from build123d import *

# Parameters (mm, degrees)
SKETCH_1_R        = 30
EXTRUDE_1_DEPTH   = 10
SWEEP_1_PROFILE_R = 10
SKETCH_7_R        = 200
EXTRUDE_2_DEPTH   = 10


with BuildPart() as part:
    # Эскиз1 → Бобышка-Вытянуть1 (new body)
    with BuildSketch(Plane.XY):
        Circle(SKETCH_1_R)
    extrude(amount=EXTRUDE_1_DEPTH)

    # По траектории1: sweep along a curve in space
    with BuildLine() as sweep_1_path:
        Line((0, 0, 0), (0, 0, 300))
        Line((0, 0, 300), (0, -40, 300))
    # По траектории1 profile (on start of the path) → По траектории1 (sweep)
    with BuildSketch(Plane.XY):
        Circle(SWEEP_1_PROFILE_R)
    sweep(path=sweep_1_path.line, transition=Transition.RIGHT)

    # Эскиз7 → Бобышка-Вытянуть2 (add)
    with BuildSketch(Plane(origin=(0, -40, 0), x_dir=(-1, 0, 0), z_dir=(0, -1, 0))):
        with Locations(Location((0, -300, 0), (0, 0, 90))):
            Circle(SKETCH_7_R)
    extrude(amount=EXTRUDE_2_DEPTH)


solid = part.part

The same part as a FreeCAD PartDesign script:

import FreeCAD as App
import Part
import Sketcher

doc = App.newDocument("Part")
body = doc.addObject("PartDesign::Body", "Body")

# Sketch on XY plane
sketch1 = doc.addObject("Sketcher::SketchObject", "Sketch")
body.addObject(sketch1)
sketch1.AttachmentSupport = (doc.XY_Plane, [""])
sketch1.MapMode = "FlatFace"
sketch1.addGeometry(Part.Circle(App.Vector(0, 0, 0), App.Vector(0, 0, 1), 30), False)
sketch1.addConstraint(Sketcher.Constraint("Coincident", 0, 3, -1, 1))
sketch1.addConstraint(Sketcher.Constraint("Diameter", 0, 60.0))
pad1 = doc.addObject("PartDesign::Pad", "Pad")
body.addObject(pad1)
pad1.Profile = sketch1
pad1.Length = 10

# Sketch on XY plane
sketch2 = doc.addObject("Sketcher::SketchObject", "Sketch001")
body.addObject(sketch2)
sketch2.AttachmentSupport = (doc.XY_Plane, [""])
sketch2.MapMode = "FlatFace"
sketch2.addGeometry(Part.Circle(App.Vector(0, 0, 0), App.Vector(0, 0, 1), 10), False)
sketch2.addConstraint(Sketcher.Constraint("Coincident", 0, 3, -1, 1))
sketch2.addConstraint(Sketcher.Constraint("Diameter", 0, 20.0))

# Sketch on YZ plane
sketch3 = doc.addObject("Sketcher::SketchObject", "Sketch002")
body.addObject(sketch3)
sketch3.AttachmentSupport = (doc.YZ_Plane, [""])
sketch3.MapMode = "FlatFace"
sketch3.addGeometry(Part.LineSegment(App.Vector(0, 0, 0), App.Vector(0, 300, 0)), False)
sketch3.addGeometry(Part.LineSegment(App.Vector(0, 300, 0), App.Vector(-40, 300, 0)), False)
sketch3.addConstraint(Sketcher.Constraint("Coincident", 0, 2, 1, 1))
sketch3.addConstraint(Sketcher.Constraint("Vertical", 0))
sketch3.addConstraint(Sketcher.Constraint("Horizontal", 1))
sketch3.addConstraint(Sketcher.Constraint("Coincident", 0, 1, -1, 1))
sketch3.addConstraint(Sketcher.Constraint("DistanceX", 1, 2, 1, 1, 40.0))
sketch3.addConstraint(Sketcher.Constraint("DistanceY", 0, 1, 0, 2, 300.0))
doc.recompute()

additivepipe = doc.addObject("PartDesign::AdditivePipe", "AdditivePipe")
body.addObject(additivepipe)
additivepipe.Profile = sketch2
additivepipe.Spine = (sketch3, ["Edge1", "Edge2"])
additivepipe.Transition = "Right corner"

# Sketch on XZ plane
sketch4 = doc.addObject("Sketcher::SketchObject", "Sketch003")
body.addObject(sketch4)
sketch4.AttachmentSupport = (doc.XZ_Plane, [""])
sketch4.MapMode = "FlatFace"
sketch4.AttachmentOffset = App.Placement(App.Vector(0, 0, 40), App.Rotation())
sketch4.addGeometry(Part.Circle(App.Vector(0, 300, 0), App.Vector(0, 0, 1), 200), False)
sketch4.addConstraint(Sketcher.Constraint("PointOnObject", 0, 3, -2))
sketch4.addConstraint(Sketcher.Constraint("Diameter", 0, 400.0))
sketch4.addConstraint(Sketcher.Constraint("DistanceY", -1, 1, 0, 3, 300.0))
pad2 = doc.addObject("PartDesign::Pad", "Pad001")
body.addObject(pad2)
pad2.Profile = sketch4
pad2.Length = 10

doc.recompute()
